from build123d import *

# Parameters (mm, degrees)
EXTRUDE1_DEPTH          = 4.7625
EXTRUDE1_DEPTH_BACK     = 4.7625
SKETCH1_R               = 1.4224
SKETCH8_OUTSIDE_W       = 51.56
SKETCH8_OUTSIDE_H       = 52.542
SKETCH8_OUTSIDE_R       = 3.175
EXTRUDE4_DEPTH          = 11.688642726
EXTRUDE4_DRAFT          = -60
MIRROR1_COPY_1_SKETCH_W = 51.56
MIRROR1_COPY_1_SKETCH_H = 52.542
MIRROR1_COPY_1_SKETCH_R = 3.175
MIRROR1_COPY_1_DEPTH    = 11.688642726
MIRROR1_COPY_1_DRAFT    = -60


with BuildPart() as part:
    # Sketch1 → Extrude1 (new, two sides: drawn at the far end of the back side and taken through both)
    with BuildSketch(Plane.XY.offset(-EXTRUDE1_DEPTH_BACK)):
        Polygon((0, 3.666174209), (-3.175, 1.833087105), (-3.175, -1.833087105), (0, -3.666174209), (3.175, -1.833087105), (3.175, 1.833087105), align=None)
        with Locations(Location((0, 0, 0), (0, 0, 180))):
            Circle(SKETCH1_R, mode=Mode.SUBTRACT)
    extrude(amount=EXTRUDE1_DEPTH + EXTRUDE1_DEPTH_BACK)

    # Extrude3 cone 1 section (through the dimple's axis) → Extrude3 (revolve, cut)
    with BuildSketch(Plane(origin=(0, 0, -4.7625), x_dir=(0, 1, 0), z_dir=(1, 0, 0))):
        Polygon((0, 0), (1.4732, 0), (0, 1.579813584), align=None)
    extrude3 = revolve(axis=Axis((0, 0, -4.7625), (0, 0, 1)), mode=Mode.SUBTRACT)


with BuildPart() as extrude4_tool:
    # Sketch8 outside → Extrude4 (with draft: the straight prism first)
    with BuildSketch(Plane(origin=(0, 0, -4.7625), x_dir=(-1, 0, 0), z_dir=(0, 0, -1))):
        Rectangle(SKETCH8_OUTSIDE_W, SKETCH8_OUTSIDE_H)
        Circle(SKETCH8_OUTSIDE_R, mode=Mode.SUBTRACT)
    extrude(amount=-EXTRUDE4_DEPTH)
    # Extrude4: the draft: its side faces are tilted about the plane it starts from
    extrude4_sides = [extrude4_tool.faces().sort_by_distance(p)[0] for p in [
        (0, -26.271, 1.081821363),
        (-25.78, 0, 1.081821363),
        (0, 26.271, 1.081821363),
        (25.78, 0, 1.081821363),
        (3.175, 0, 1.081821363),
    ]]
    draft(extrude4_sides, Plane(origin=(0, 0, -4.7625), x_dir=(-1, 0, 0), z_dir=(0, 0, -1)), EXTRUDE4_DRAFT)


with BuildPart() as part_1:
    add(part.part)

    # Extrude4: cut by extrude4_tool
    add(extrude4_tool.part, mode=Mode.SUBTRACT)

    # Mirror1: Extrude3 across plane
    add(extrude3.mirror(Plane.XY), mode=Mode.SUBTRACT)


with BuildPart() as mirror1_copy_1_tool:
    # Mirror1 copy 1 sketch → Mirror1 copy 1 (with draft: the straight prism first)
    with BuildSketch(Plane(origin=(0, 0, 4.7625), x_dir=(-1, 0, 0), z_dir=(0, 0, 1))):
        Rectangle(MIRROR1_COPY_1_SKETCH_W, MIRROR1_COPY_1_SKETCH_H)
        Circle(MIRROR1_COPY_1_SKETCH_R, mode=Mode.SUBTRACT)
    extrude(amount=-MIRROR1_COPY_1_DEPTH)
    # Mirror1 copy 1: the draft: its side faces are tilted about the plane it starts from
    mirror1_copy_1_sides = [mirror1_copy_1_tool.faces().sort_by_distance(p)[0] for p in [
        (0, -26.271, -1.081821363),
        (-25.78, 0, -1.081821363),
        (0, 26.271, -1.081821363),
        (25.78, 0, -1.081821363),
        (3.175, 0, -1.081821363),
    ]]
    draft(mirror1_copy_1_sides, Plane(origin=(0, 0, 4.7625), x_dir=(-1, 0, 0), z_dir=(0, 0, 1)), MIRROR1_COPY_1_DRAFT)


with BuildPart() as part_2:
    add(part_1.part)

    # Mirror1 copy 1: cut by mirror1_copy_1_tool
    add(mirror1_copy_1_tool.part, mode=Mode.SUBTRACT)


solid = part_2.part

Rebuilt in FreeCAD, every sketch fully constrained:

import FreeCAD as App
import Part
import Sketcher
from FreeCAD import Vector
Q = App.Units.Quantity


def faces_at(feature, points):
    """Names of the faces that lie closest to the given points."""
    faces = feature.Shape.Faces
    near = lambda p: min(range(len(faces)), key=lambda i: faces[i].distToShape(Part.Vertex(*p))[0])
    return sorted({f"Face{near(p) + 1}" for p in points})

doc = App.newDocument("Part")
body = doc.addObject("PartDesign::Body", "Body")

# Sketch on XY plane
sketch1 = body.newObject("Sketcher::SketchObject", "Sketch")
sketch1.AttachmentSupport = (doc.getObject("XY_Plane"), [""])
sketch1.MapMode = "FlatFace"
sketch1.addGeometry([
    Part.LineSegment(Vector(0, 3.7, 0), Vector(-3.2, 1.8, 0)),  # 0
    Part.LineSegment(Vector(-3.2, 1.8, 0), Vector(-3.2, -1.8, 0)),  # 1
    Part.LineSegment(Vector(-3.2, -1.8, 0), Vector(0, -3.7, 0)),  # 2
    Part.LineSegment(Vector(0, -3.7, 0), Vector(3.2, -1.8, 0)),  # 3
    Part.LineSegment(Vector(3.2, -1.8, 0), Vector(3.2, 1.8, 0)),  # 4
    Part.LineSegment(Vector(3.2, 1.8, 0), Vector(0, 3.7, 0)),  # 5
    Part.Circle(Vector(0, 0, 0), Vector(0, 0, 1), 1.4),  # 6
], False)
sketch1.addConstraint([
    Sketcher.Constraint("Coincident", 0, 2, 1, 1),
    Sketcher.Constraint("Coincident", 1, 2, 2, 1),
    Sketcher.Constraint("Coincident", 2, 2, 3, 1),
    Sketcher.Constraint("Coincident", 3, 2, 4, 1),
    Sketcher.Constraint("Coincident", 4, 2, 5, 1),
    Sketcher.Constraint("Coincident", 5, 2, 0, 1),
    Sketcher.Constraint("Vertical", 1),
    Sketcher.Constraint("Vertical", 4),
    Sketcher.Constraint("Coincident", 6, 3, -1, 1),
    Sketcher.Constraint("Symmetric", 0, 2, 3, 2, -1, 1),
    Sketcher.Constraint("Symmetric", 2, 2, 5, 2, -1, 1),
    Sketcher.Constraint("PointOnObject", 2, 2, -2),
    Sketcher.Constraint("Parallel", 2, 5),
    Sketcher.Constraint("Horizontal", 1, 2, 3, 2),
    Sketcher.Constraint("Diameter", 6, Q("0.112 in")),
    Sketcher.Constraint("Angle", 0, Q("-150 deg")),
    Sketcher.Constraint("DistanceX", 1, 2, 3, 2, Q("0.25 in")),
    Sketcher.Constraint("DistanceY", 1, 2, 1, 1, 3.666174),
])
pad1 = body.newObject("PartDesign::Pad", "Pad")
pad1.Profile = sketch1
pad1.Type = "TwoLengths"
pad1.Length = Q("0.1875 in")
pad1.Length2 = Q("0.1875 in")

# Sketch on YZ plane
sketch2 = body.newObject("Sketcher::SketchObject", "Sketch001")
sketch2.AttachmentSupport = (doc.getObject("YZ_Plane"), [""])
sketch2.MapMode = "FlatFace"
sketch2.addGeometry([
    Part.LineSegment(Vector(0, -4.8, 0), Vector(1.5, -4.8, 0)),
    Part.LineSegment(Vector(1.5, -4.8, 0), Vector(0, -3.2, 0)),
    Part.LineSegment(Vector(0, -3.2, 0), Vector(0, -4.8, 0)),
], False)
sketch2.addConstraint([
    Sketcher.Constraint("Coincident", 0, 2, 1, 1),
    Sketcher.Constraint("Coincident", 1, 2, 2, 1),
    Sketcher.Constraint("Coincident", 2, 2, 0, 1),
    Sketcher.Constraint("Horizontal", 0),
    Sketcher.Constraint("Vertical", 2),
    Sketcher.Constraint("PointOnObject", 1, 2, -2),
    Sketcher.Constraint("Angle", 1, Q("133 deg")),
    Sketcher.Constraint("DistanceX", 0, 1, 0, 2, Q("0.058 in")),
    Sketcher.Constraint("DistanceY", 0, 2, -1, 1, Q("0.1875 in")),
])
groove = body.newObject("PartDesign::Groove", "Groove")
groove.Profile = sketch2
groove.ReferenceAxis = (sketch2, ["V_Axis"])
groove.Angle = 360
body2 = doc.addObject("PartDesign::Body", "Body001")

# Sketch on XY plane
sketch3 = body2.newObject("Sketcher::SketchObject", "Sketch002")
sketch3.AttachmentSupport = (doc.getObject("XY_Plane001"), [""])
sketch3.MapMode = "FlatFace"
sketch3.AttachmentOffset = App.Placement(Vector(0, 0, -0.1875 * 25.4), App.Rotation())
sketch3.addGeometry([
    Part.LineSegment(Vector(25.8, 26.3, 0), Vector(25.8, -26.3, 0)),  # 0
    Part.LineSegment(Vector(25.8, -26.3, 0), Vector(-25.8, -26.3, 0)),  # 1
    Part.LineSegment(Vector(-25.8, -26.3, 0), Vector(-25.8, 26.3, 0)),  # 2
    Part.LineSegment(Vector(-25.8, 26.3, 0), Vector(25.8, 26.3, 0)),  # 3
    Part.Circle(Vector(0, 0, 0), Vector(0, 0, 1), 3.2),  # 4
], False)
sketch3.addConstraint([
    Sketcher.Constraint("Coincident", 0, 2, 1, 1),
    Sketcher.Constraint("Coincident", 1, 2, 2, 1),
    Sketcher.Constraint("Coincident", 2, 2, 3, 1),
    Sketcher.Constraint("Coincident", 3, 2, 0, 1),
    Sketcher.Constraint("Vertical", 0),
    Sketcher.Constraint("Horizontal", 1),
    Sketcher.Constraint("Vertical", 2),
    Sketcher.Constraint("Horizontal", 3),
    Sketcher.Constraint("Coincident", 4, 3, -1, 1),
    Sketcher.Constraint("Symmetric", 0, 2, 2, 2, -1, 1),
    Sketcher.Constraint("Diameter", 4, Q("0.25 in")),
    Sketcher.Constraint("DistanceX", 1, 2, 1, 1, 51.56),
    Sketcher.Constraint("DistanceY", 0, 2, 0, 1, 52.542),
])
pad2 = body2.newObject("PartDesign::Pad", "Pad001")
pad2.Profile = sketch3
pad2.Length = 11.688643
doc.recompute()

datumplane = body2.newObject("PartDesign::Plane", "DatumPlane")
datumplane.AttachmentSupport = (doc.getObject("XY_Plane001"), [""])
datumplane.MapMode = "FlatFace"
datumplane.AttachmentOffset = App.Placement(Vector(0, 0, -0.1875 * 25.4), App.Rotation())
draft = body2.newObject("PartDesign::Draft", "Draft")
draft.Base = (pad2, faces_at(pad2, [
    (0, -26.271, 1.082),
    (-25.78, 0, 1.082),
    (0, 26.271, 1.082),
    (25.78, 0, 1.082),
    (3.175, 0, 1.082),
]))
draft.NeutralPlane = (datumplane, [""])
draft.Angle = 60
draft.Reversed = False
doc.recompute()

boolean = body.newObject("PartDesign::Boolean", "Boolean")
boolean.Type = "Cut"
boolean.addObjects([body2])
doc.recompute()

mirrored = body.newObject("PartDesign::Mirrored", "Mirrored")
mirrored.Originals = [groove]
mirrored.MirrorPlane = (doc.getObject("XY_Plane"), [""])
body.Tip = mirrored
body3 = doc.addObject("PartDesign::Body", "Body002")

# Sketch on XY plane
sketch4 = body3.newObject("Sketcher::SketchObject", "Sketch003")
sketch4.AttachmentSupport = (doc.getObject("XY_Plane002"), [""])
sketch4.MapMode = "FlatFace"
sketch4.AttachmentOffset = App.Placement(Vector(0, 0, 0.1875 * 25.4), App.Rotation())
sketch4.addGeometry([
    Part.LineSegment(Vector(25.8, -26.3, 0), Vector(25.8, 26.3, 0)),  # 0
    Part.LineSegment(Vector(25.8, 26.3, 0), Vector(-25.8, 26.3, 0)),  # 1
    Part.LineSegment(Vector(-25.8, 26.3, 0), Vector(-25.8, -26.3, 0)),  # 2
    Part.LineSegment(Vector(-25.8, -26.3, 0), Vector(25.8, -26.3, 0)),  # 3
    Part.Circle(Vector(0, 0, 0), Vector(0, 0, 1), 3.2),  # 4
], False)
sketch4.addConstraint([
    Sketcher.Constraint("Coincident", 0, 2, 1, 1),
    Sketcher.Constraint("Coincident", 1, 2, 2, 1),
    Sketcher.Constraint("Coincident", 2, 2, 3, 1),
    Sketcher.Constraint("Coincident", 3, 2, 0, 1),
    Sketcher.Constraint("Vertical", 0),
    Sketcher.Constraint("Horizontal", 1),
    Sketcher.Constraint("Vertical", 2),
    Sketcher.Constraint("Horizontal", 3),
    Sketcher.Constraint("Coincident", 4, 3, -1, 1),
    Sketcher.Constraint("Symmetric", 0, 2, 2, 2, -1, 1),
    Sketcher.Constraint("Diameter", 4, Q("0.25 in")),
    Sketcher.Constraint("DistanceX", 1, 2, 1, 1, 51.56),
    Sketcher.Constraint("DistanceY", 0, 1, 0, 2, 52.542),
])
pad3 = body3.newObject("PartDesign::Pad", "Pad002")
pad3.Profile = sketch4
pad3.Length = 11.688643
pad3.Reversed = True
doc.recompute()

datumplane2 = body3.newObject("PartDesign::Plane", "DatumPlane001")
datumplane2.AttachmentSupport = (doc.getObject("XY_Plane002"), [""])
datumplane2.MapMode = "FlatFace"
datumplane2.AttachmentOffset = App.Placement(Vector(0, 0, 0.1875 * 25.4), App.Rotation())
draft2 = body3.newObject("PartDesign::Draft", "Draft001")
draft2.Base = (pad3, faces_at(pad3, [
    (0, -26.271, -1.082),
    (-25.78, 0, -1.082),
    (0, 26.271, -1.082),
    (25.78, 0, -1.082),
    (3.175, 0, -1.082),
]))
draft2.NeutralPlane = (datumplane2, [""])
draft2.Angle = 60
draft2.Reversed = True
doc.recompute()

boolean2 = body.newObject("PartDesign::Boolean", "Boolean001")
boolean2.Type = "Cut"
boolean2.addObjects([body3])

doc.recompute()
